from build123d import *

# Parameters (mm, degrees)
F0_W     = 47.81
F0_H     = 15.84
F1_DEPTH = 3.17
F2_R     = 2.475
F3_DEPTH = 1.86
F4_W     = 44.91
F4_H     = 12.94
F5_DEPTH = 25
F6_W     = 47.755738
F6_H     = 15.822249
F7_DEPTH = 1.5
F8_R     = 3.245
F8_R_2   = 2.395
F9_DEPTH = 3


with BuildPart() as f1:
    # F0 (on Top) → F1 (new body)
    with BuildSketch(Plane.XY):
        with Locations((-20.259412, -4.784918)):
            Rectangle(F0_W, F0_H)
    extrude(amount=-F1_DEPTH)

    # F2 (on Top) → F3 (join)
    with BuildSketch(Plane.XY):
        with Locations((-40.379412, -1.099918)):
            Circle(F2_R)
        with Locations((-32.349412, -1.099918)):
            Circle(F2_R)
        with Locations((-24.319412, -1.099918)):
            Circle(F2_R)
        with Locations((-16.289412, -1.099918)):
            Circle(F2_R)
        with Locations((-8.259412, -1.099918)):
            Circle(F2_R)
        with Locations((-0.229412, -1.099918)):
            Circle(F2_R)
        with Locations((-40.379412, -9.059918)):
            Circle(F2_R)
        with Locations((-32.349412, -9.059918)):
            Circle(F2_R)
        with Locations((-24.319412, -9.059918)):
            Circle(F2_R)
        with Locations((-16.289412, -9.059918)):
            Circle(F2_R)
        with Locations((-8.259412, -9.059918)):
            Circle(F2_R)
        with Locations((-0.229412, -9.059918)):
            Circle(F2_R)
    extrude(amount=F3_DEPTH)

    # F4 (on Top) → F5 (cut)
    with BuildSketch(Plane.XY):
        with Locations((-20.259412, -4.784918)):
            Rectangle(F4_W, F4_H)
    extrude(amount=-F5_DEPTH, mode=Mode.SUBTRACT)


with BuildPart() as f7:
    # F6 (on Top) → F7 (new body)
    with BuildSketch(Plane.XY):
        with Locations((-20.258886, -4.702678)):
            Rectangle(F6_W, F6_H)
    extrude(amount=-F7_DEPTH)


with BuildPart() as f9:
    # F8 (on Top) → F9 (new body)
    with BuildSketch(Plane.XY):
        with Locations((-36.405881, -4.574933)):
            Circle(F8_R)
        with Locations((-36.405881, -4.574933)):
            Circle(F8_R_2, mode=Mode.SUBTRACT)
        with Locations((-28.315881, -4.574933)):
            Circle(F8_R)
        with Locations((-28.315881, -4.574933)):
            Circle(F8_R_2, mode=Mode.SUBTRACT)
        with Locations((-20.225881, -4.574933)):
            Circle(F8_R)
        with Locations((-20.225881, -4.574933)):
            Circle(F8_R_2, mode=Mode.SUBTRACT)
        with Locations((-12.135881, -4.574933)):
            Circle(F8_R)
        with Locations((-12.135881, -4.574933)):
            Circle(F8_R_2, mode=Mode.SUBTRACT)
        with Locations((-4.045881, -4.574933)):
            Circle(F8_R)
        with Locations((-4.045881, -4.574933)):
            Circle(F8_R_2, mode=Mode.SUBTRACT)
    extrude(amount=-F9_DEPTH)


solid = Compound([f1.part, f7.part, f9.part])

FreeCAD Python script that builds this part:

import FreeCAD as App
import Part
import Sketcher
Q = App.Units.Quantity


def add_polygon(sketch, points):
    """Adds a closed chain of lines whose ends are joined by coincident constraints."""
    first, n = sketch.GeometryCount, len(points)
    for a, b in zip(points, points[1:] + points[:1]):
        sketch.addGeometry(Part.LineSegment(App.Vector(*a, 0), App.Vector(*b, 0)), False)
    for i in range(n):
        sketch.addConstraint(Sketcher.Constraint("Coincident", first + i, 2, first + (i + 1) % n, 1))

doc = App.newDocument("Part")
body = doc.addObject("PartDesign::Body", "Body")
body.AllowCompound = True

sketch1 = body.newObject("Sketcher::SketchObject", "Sketch")
sketch1.AttachmentSupport = (doc.getObject("XY_Plane"), [""])
sketch1.MapMode = "FlatFace"
add_polygon(sketch1, [(-44, 3), (-44, -13), (4, -13), (4, 3)])
sketch1.addConstraint(Sketcher.Constraint("Vertical", 0))
sketch1.addConstraint(Sketcher.Constraint("Horizontal", 1))
sketch1.addConstraint(Sketcher.Constraint("Vertical", 2))
sketch1.addConstraint(Sketcher.Constraint("Horizontal", 3))
sketch1.addConstraint(Sketcher.Constraint("DistanceX", 1, 1, 1, 2, Q("47.81 mm")))
sketch1.addConstraint(Sketcher.Constraint("DistanceY", 0, 2, 0, 1, Q("15.84 mm")))
sketch1.addConstraint(Sketcher.Constraint("DistanceX", -1, 1, 1, 2, Q("3.645588 mm")))
sketch1.addConstraint(Sketcher.Constraint("DistanceY", 0, 2, -1, 1, Q("12.704918 mm")))
pad1 = body.newObject("PartDesign::Pad", "Pad")
pad1.Profile = sketch1
pad1.Length = 3.17
pad1.Reversed = True

sketch2 = body.newObject("Sketcher::SketchObject", "Sketch001")
sketch2.AttachmentSupport = (doc.getObject("XY_Plane"), [""])
sketch2.MapMode = "FlatFace"
sketch2.addGeometry(Part.Circle(App.Vector(-40.4, -1.1, 0), App.Vector(0, 0, 1), 2.5), False)
sketch2.addGeometry(Part.Circle(App.Vector(-32.3, -1.1, 0), App.Vector(0, 0, 1), 2.5), False)
sketch2.addGeometry(Part.Circle(App.Vector(-24.3, -1.1, 0), App.Vector(0, 0, 1), 2.5), False)
sketch2.addGeometry(Part.Circle(App.Vector(-16.3, -1.1, 0), App.Vector(0, 0, 1), 2.5), False)
sketch2.addGeometry(Part.Circle(App.Vector(-8.3, -1.1, 0), App.Vector(0, 0, 1), 2.5), False)
sketch2.addGeometry(Part.Circle(App.Vector(-0.2, -1.1, 0), App.Vector(0, 0, 1), 2.5), False)
sketch2.addGeometry(Part.Circle(App.Vector(-40.4, -9.1, 0), App.Vector(0, 0, 1), 2.5), False)
sketch2.addGeometry(Part.Circle(App.Vector(-32.3, -9.1, 0), App.Vector(0, 0, 1), 2.5), False)
sketch2.addGeometry(Part.Circle(App.Vector(-24.3, -9.1, 0), App.Vector(0, 0, 1), 2.5), False)
sketch2.addGeometry(Part.Circle(App.Vector(-16.3, -9.1, 0), App.Vector(0, 0, 1), 2.5), False)
sketch2.addGeometry(Part.Circle(App.Vector(-8.3, -9.1, 0), App.Vector(0, 0, 1), 2.5), False)
sketch2.addGeometry(Part.Circle(App.Vector(-0.2, -9.1, 0), App.Vector(0, 0, 1), 2.5), False)
sketch2.addConstraint(Sketcher.Constraint("Equal", 0, 1))
sketch2.addConstraint(Sketcher.Constraint("Equal", 1, 2))
sketch2.addConstraint(Sketcher.Constraint("Equal", 2, 3))
sketch2.addConstraint(Sketcher.Constraint("Equal", 3, 4))
sketch2.addConstraint(Sketcher.Constraint("Equal", 4, 5))
sketch2.addConstraint(Sketcher.Constraint("Equal", 5, 6))
sketch2.addConstraint(Sketcher.Constraint("Equal", 6, 7))
sketch2.addConstraint(Sketcher.Constraint("Equal", 7, 8))
sketch2.addConstraint(Sketcher.Constraint("Equal", 8, 9))
sketch2.addConstraint(Sketcher.Constraint("Equal", 9, 10))
sketch2.addConstraint(Sketcher.Constraint("Equal", 10, 11))
sketch2.addConstraint(Sketcher.Constraint("Horizontal", 0, 3, 1, 3))
sketch2.addConstraint(Sketcher.Constraint("Horizontal", 1, 3, 2, 3))
sketch2.addConstraint(Sketcher.Constraint("Horizontal", 2, 3, 3, 3))
sketch2.addConstraint(Sketcher.Constraint("Horizontal", 3, 3, 4, 3))
sketch2.addConstraint(Sketcher.Constraint("Horizontal", 4, 3, 5, 3))
sketch2.addConstraint(Sketcher.Constraint("Horizontal", 6, 3, 7, 3))
sketch2.addConstraint(Sketcher.Constraint("Horizontal", 7, 3, 8, 3))
sketch2.addConstraint(Sketcher.Constraint("Horizontal", 8, 3, 9, 3))
sketch2.addConstraint(Sketcher.Constraint("Horizontal", 9, 3, 10, 3))
sketch2.addConstraint(Sketcher.Constraint("Horizontal", 10, 3, 11, 3))
sketch2.addConstraint(Sketcher.Constraint("Vertical", 0, 3, 6, 3))
sketch2.addConstraint(Sketcher.Constraint("Vertical", 1, 3, 7, 3))
sketch2.addConstraint(Sketcher.Constraint("Vertical", 2, 3, 8, 3))
sketch2.addConstraint(Sketcher.Constraint("Vertical", 3, 3, 9, 3))
sketch2.addConstraint(Sketcher.Constraint("Vertical", 4, 3, 10, 3))
sketch2.addConstraint(Sketcher.Constraint("Vertical", 5, 3, 11, 3))
sketch2.addConstraint(Sketcher.Constraint("Diameter", 0, Q("4.95 mm")))
sketch2.addConstraint(Sketcher.Constraint("DistanceX", 0, 3, 1, 3, Q("8.03 mm")))
sketch2.addConstraint(Sketcher.Constraint("DistanceX", 1, 3, 2, 3, Q("8.03 mm")))
sketch2.addConstraint(Sketcher.Constraint("DistanceX", 2, 3, 3, 3, Q("8.03 mm")))
sketch2.addConstraint(Sketcher.Constraint("DistanceX", 3, 3, 4, 3, Q("8.03 mm")))
sketch2.addConstraint(Sketcher.Constraint("DistanceX", 4, 3, 5, 3, Q("8.03 mm")))
sketch2.addConstraint(Sketcher.Constraint("DistanceY", 6, 3, 0, 3, Q("7.96 mm")))
sketch2.addConstraint(Sketcher.Constraint("DistanceX", 2, 3, -1, 1, Q("24.319412 mm")))
sketch2.addConstraint(Sketcher.Constraint("DistanceY", 0, 3, -1, 1, Q("1.099918 mm")))
pad2 = body.newObject("PartDesign::Pad", "Pad001")
pad2.Profile = sketch2
pad2.Length = 1.86

sketch3 = body.newObject("Sketcher::SketchObject", "Sketch002")
sketch3.AttachmentSupport = (doc.getObject("XY_Plane"), [""])
sketch3.MapMode = "FlatFace"
add_polygon(sketch3, [(-43, 2), (-43, -11), (2, -11), (2, 2)])
sketch3.addConstraint(Sketcher.Constraint("Vertical", 0))
sketch3.addConstraint(Sketcher.Constraint("Horizontal", 1))
sketch3.addConstraint(Sketcher.Constraint("Vertical", 2))
sketch3.addConstraint(Sketcher.Constraint("Horizontal", 3))
sketch3.addConstraint(Sketcher.Constraint("DistanceX", 1, 1, 1, 2, Q("44.91 mm")))
sketch3.addConstraint(Sketcher.Constraint("DistanceY", 0, 2, 0, 1, Q("12.94 mm")))
sketch3.addConstraint(Sketcher.Constraint("DistanceX", 0, 2, -1, 1, Q("42.714412 mm")))
sketch3.addConstraint(Sketcher.Constraint("DistanceY", 0, 2, -1, 1, Q("11.254918 mm")))
pocket1 = body.newObject("PartDesign::Pocket", "Pocket")
pocket1.Profile = sketch3
pocket1.Length = 25
body2 = doc.addObject("PartDesign::Body", "Body001")

sketch4 = body2.newObject("Sketcher::SketchObject", "Sketch003")
sketch4.AttachmentSupport = (doc.getObject("XY_Plane001"), [""])
sketch4.MapMode = "FlatFace"
add_polygon(sketch4, [(-44, 3), (-44, -13), (4, -13), (4, 3)])
sketch4.addConstraint(Sketcher.Constraint("Vertical", 0))
sketch4.addConstraint(Sketcher.Constraint("Horizontal", 1))
sketch4.addConstraint(Sketcher.Constraint("Vertical", 2))
sketch4.addConstraint(Sketcher.Constraint("Horizontal", 3))
sketch4.addConstraint(Sketcher.Constraint("DistanceY", 0, 2, 0, 1, Q("15.822249 mm")))
sketch4.addConstraint(Sketcher.Constraint("DistanceX", 1, 1, 1, 2, Q("47.755738 mm")))
sketch4.addConstraint(Sketcher.Constraint("DistanceX", 0, 2, -1, 1, Q("44.136755 mm")))
sketch4.addConstraint(Sketcher.Constraint("DistanceY", 0, 2, -1, 1, Q("12.613803 mm")))
pad3 = body2.newObject("PartDesign::Pad", "Pad002")
pad3.Profile = sketch4
pad3.Length = 1.5
pad3.Reversed = True
body3 = doc.addObject("PartDesign::Body", "Body002")
body3.AllowCompound = True

sketch5 = body3.newObject("Sketcher::SketchObject", "Sketch004")
sketch5.AttachmentSupport = (doc.getObject("XY_Plane002"), [""])
sketch5.MapMode = "FlatFace"
sketch5.addGeometry(Part.Circle(App.Vector(-36.4, -4.6, 0), App.Vector(0, 0, 1), 3.2), False)
sketch5.addGeometry(Part.Circle(App.Vector(-36.4, -4.6, 0), App.Vector(0, 0, 1), 2.4), False)
sketch5.addGeometry(Part.Circle(App.Vector(-28.3, -4.6, 0), App.Vector(0, 0, 1), 3.2), False)
sketch5.addGeometry(Part.Circle(App.Vector(-28.3, -4.6, 0), App.Vector(0, 0, 1), 2.4), False)
sketch5.addGeometry(Part.Circle(App.Vector(-20.2, -4.6, 0), App.Vector(0, 0, 1), 3.2), False)
sketch5.addGeometry(Part.Circle(App.Vector(-20.2, -4.6, 0), App.Vector(0, 0, 1), 2.4), False)
sketch5.addGeometry(Part.Circle(App.Vector(-12.1, -4.6, 0), App.Vector(0, 0, 1), 3.2), False)
sketch5.addGeometry(Part.Circle(App.Vector(-12.1, -4.6, 0), App.Vector(0, 0, 1), 2.4), False)
sketch5.addGeometry(Part.Circle(App.Vector(-4, -4.6, 0), App.Vector(0, 0, 1), 3.2), False)
sketch5.addGeometry(Part.Circle(App.Vector(-4, -4.6, 0), App.Vector(0, 0, 1), 2.4), False)
sketch5.addConstraint(Sketcher.Constraint("Coincident", 1, 3, 0, 3))
sketch5.addConstraint(Sketcher.Constraint("Coincident", 3, 3, 2, 3))
sketch5.addConstraint(Sketcher.Constraint("Coincident", 5, 3, 4, 3))
sketch5.addConstraint(Sketcher.Constraint("Coincident", 7, 3, 6, 3))
sketch5.addConstraint(Sketcher.Constraint("Coincident", 9, 3, 8, 3))
sketch5.addConstraint(Sketcher.Constraint("Equal", 0, 2))
sketch5.addConstraint(Sketcher.Constraint("Equal", 1, 3))
sketch5.addConstraint(Sketcher.Constraint("Equal", 2, 4))
sketch5.addConstraint(Sketcher.Constraint("Equal", 3, 5))
sketch5.addConstraint(Sketcher.Constraint("Equal", 4, 6))
sketch5.addConstraint(Sketcher.Constraint("Equal", 5, 7))
sketch5.addConstraint(Sketcher.Constraint("Equal", 6, 8))
sketch5.addConstraint(Sketcher.Constraint("Equal", 7, 9))
sketch5.addConstraint(Sketcher.Constraint("Horizontal", 1, 3, 2, 3))
sketch5.addConstraint(Sketcher.Constraint("Horizontal", 3, 3, 4, 3))
sketch5.addConstraint(Sketcher.Constraint("Horizontal", 5, 3, 6, 3))
sketch5.addConstraint(Sketcher.Constraint("Horizontal", 7, 3, 8, 3))
sketch5.addConstraint(Sketcher.Constraint("Diameter", 0, Q("6.49 mm")))
sketch5.addConstraint(Sketcher.Constraint("Diameter", 1, Q("4.79 mm")))
sketch5.addConstraint(Sketcher.Constraint("DistanceX", 0, 3, 2, 3, Q("8.09 mm")))
sketch5.addConstraint(Sketcher.Constraint("DistanceX", 2, 3, 4, 3, Q("8.09 mm")))
sketch5.addConstraint(Sketcher.Constraint("DistanceX", 4, 3, 6, 3, Q("8.09 mm")))
sketch5.addConstraint(Sketcher.Constraint("DistanceX", 6, 3, 8, 3, Q("8.09 mm")))
sketch5.addConstraint(Sketcher.Constraint("DistanceX", 0, 3, -1, 1, Q("36.405881 mm")))
sketch5.addConstraint(Sketcher.Constraint("DistanceY", 0, 3, -1, 1, Q("4.574933 mm")))
pad4 = body3.newObject("PartDesign::Pad", "Pad003")
pad4.Profile = sketch5
pad4.Length = 3
pad4.Reversed = True

doc.recompute()
